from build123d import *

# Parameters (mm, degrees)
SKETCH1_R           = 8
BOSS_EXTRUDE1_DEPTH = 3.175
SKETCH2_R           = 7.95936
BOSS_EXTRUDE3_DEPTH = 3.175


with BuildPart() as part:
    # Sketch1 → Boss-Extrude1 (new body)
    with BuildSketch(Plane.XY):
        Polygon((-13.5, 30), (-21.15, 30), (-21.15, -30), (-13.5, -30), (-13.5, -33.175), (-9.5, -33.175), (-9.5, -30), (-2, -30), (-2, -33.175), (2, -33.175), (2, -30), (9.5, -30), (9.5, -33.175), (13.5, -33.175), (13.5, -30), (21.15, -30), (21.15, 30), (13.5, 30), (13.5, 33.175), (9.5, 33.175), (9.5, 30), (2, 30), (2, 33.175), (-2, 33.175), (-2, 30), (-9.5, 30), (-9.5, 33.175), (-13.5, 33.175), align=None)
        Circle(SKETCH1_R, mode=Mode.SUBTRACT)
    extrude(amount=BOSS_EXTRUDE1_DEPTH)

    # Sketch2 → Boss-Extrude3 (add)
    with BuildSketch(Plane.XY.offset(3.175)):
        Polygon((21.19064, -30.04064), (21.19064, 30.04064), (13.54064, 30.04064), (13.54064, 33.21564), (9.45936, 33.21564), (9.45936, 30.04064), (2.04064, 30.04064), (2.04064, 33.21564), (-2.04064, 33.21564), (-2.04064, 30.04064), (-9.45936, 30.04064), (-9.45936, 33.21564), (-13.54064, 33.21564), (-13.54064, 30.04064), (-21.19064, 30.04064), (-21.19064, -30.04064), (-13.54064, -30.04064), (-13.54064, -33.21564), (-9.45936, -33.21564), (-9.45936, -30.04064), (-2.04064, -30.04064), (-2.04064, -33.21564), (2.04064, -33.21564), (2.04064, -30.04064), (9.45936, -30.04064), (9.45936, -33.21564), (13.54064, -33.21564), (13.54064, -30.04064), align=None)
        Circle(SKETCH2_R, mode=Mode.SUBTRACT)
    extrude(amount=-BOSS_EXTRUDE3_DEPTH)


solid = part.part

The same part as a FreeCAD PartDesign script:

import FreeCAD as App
import Part
import Sketcher
from FreeCAD import Vector


def add_polygon(sketch, points):
    """Adds a closed chain of lines whose ends are joined by coincident constraints."""
    first, n = sketch.GeometryCount, len(points)
    for a, b in zip(points, points[1:] + points[:1]):
        sketch.addGeometry(Part.LineSegment(App.Vector(*a, 0), App.Vector(*b, 0)), False)
    for i in range(n):
        sketch.addConstraint(Sketcher.Constraint("Coincident", first + i, 2, first + (i + 1) % n, 1))

doc = App.newDocument("Part")
body = doc.addObject("PartDesign::Body", "Body")

# Sketch on XY plane
sketch1 = body.newObject("Sketcher::SketchObject", "Sketch")
sketch1.AttachmentSupport = (doc.getObject("XY_Plane"), [""])
sketch1.MapMode = "FlatFace"
add_polygon(sketch1, [(-13.5, 30), (-21.1, 30), (-21.1, -30), (-13.5, -30), (-13.5, -33.2), (-9.5, -33.2), (-9.5, -30), (-2, -30), (-2, -33.2), (2, -33.2), (2, -30), (9.5, -30), (9.5, -33.2), (13.5, -33.2), (13.5, -30), (21.1, -30), (21.1, 30), (13.5, 30), (13.5, 33.2), (9.5, 33.2), (9.5, 30), (2, 30), (2, 33.2), (-2, 33.2), (-2, 30), (-9.5, 30), (-9.5, 33.2), (-13.5, 33.2)])  # lines 0-27
sketch1.addGeometry(Part.Circle(Vector(0, 0, 0), Vector(0, 0, 1), 8), False)  # 28
sketch1.addConstraint([
    Sketcher.Constraint("Horizontal", 0),
    Sketcher.Constraint("Vertical", 1),
    Sketcher.Constraint("Horizontal", 2),
    Sketcher.Constraint("Vertical", 3),
    Sketcher.Constraint("Horizontal", 4),
    Sketcher.Constraint("Vertical", 5),
    Sketcher.Constraint("Horizontal", 6),
    Sketcher.Constraint("Vertical", 7),
    Sketcher.Constraint("Horizontal", 8),
    Sketcher.Constraint("Vertical", 9),
    Sketcher.Constraint("Horizontal", 10),
    Sketcher.Constraint("Vertical", 11),
    Sketcher.Constraint("Horizontal", 12),
    Sketcher.Constraint("Vertical", 13),
    Sketcher.Constraint("Horizontal", 14),
    Sketcher.Constraint("Vertical", 15),
    Sketcher.Constraint("Horizontal", 16),
    Sketcher.Constraint("Vertical", 17),
    Sketcher.Constraint("Horizontal", 18),
    Sketcher.Constraint("Vertical", 19),
    Sketcher.Constraint("Horizontal", 20),
    Sketcher.Constraint("Vertical", 21),
    Sketcher.Constraint("Horizontal", 22),
    Sketcher.Constraint("Vertical", 23),
    Sketcher.Constraint("Horizontal", 24),
    Sketcher.Constraint("Vertical", 25),
    Sketcher.Constraint("Horizontal", 26),
    Sketcher.Constraint("Vertical", 27),
    Sketcher.Constraint("Coincident", 28, 3, -1, 1),
    Sketcher.Constraint("Symmetric", 0, 2, 14, 2, -1, 1),
    Sketcher.Constraint("Symmetric", 2, 2, 16, 2, -1, 1),
    Sketcher.Constraint("Symmetric", 4, 2, 18, 2, -1, 1),
    Sketcher.Constraint("Symmetric", 6, 2, 20, 2, -1, 1),
    Sketcher.Constraint("Symmetric", 8, 2, 22, 2, -1, 1),
    Sketcher.Constraint("Symmetric", 10, 2, 24, 2, -1, 1),
    Sketcher.Constraint("Symmetric", 12, 2, 26, 2, -1, 1),
    Sketcher.Constraint("Symmetric", 6, 2, 9, 2, -2),
    Sketcher.Constraint("Symmetric", 4, 2, 11, 2, -2),
    Sketcher.Constraint("Symmetric", 2, 2, 13, 2, -2),
    Sketcher.Constraint("Horizontal", 2, 2, 5, 2),
    Sketcher.Constraint("Horizontal", 4, 2, 7, 2),
    Sketcher.Constraint("Equal", 4, 8),
    Sketcher.Constraint("Diameter", 28, 16.0),
    Sketcher.Constraint("DistanceX", 4, 1, 4, 2, 4.0),
    Sketcher.Constraint("DistanceY", 1, 2, 1, 1, 60.0),
    Sketcher.Constraint("DistanceX", 6, 1, 6, 2, 7.5),
    Sketcher.Constraint("DistanceX", 0, 2, 0, 1, 7.65),
    Sketcher.Constraint("DistanceY", 3, 2, 3, 1, 3.175),
])
pad1 = body.newObject("PartDesign::Pad", "Pad")
pad1.Profile = sketch1
pad1.Length = 3.175

# Sketch on XY plane
sketch2 = body.newObject("Sketcher::SketchObject", "Sketch001")
sketch2.AttachmentSupport = (doc.getObject("XY_Plane"), [""])
sketch2.MapMode = "FlatFace"
sketch2.AttachmentOffset = App.Placement(Vector(0, 0, 3.175), App.Rotation())
add_polygon(sketch2, [(21.2, -30), (21.2, 30), (13.5, 30), (13.5, 33.2), (9.5, 33.2), (9.5, 30), (2, 30), (2, 33.2), (-2, 33.2), (-2, 30), (-9.5, 30), (-9.5, 33.2), (-13.5, 33.2), (-13.5, 30), (-21.2, 30), (-21.2, -30), (-13.5, -30), (-13.5, -33.2), (-9.5, -33.2), (-9.5, -30), (-2, -30), (-2, -33.2), (2, -33.2), (2, -30), (9.5, -30), (9.5, -33.2), (13.5, -33.2), (13.5, -30)])  # lines 0-27
sketch2.addGeometry(Part.Circle(Vector(0, 0, 0), Vector(0, 0, 1), 8), False)  # 28
sketch2.addConstraint([
    Sketcher.Constraint("Vertical", 0),
    Sketcher.Constraint("Horizontal", 1),
    Sketcher.Constraint("Vertical", 2),
    Sketcher.Constraint("Horizontal", 3),
    Sketcher.Constraint("Vertical", 4),
    Sketcher.Constraint("Horizontal", 5),
    Sketcher.Constraint("Vertical", 6),
    Sketcher.Constraint("Horizontal", 7),
    Sketcher.Constraint("Vertical", 8),
    Sketcher.Constraint("Horizontal", 9),
    Sketcher.Constraint("Vertical", 10),
    Sketcher.Constraint("Horizontal", 11),
    Sketcher.Constraint("Vertical", 12),
    Sketcher.Constraint("Horizontal", 13),
    Sketcher.Constraint("Vertical", 14),
    Sketcher.Constraint("Horizontal", 15),
    Sketcher.Constraint("Vertical", 16),
    Sketcher.Constraint("Horizontal", 17),
    Sketcher.Constraint("Vertical", 18),
    Sketcher.Constraint("Horizontal", 19),
    Sketcher.Constraint("Vertical", 20),
    Sketcher.Constraint("Horizontal", 21),
    Sketcher.Constraint("Vertical", 22),
    Sketcher.Constraint("Horizontal", 23),
    Sketcher.Constraint("Vertical", 24),
    Sketcher.Constraint("Horizontal", 25),
    Sketcher.Constraint("Vertical", 26),
    Sketcher.Constraint("Horizontal", 27),
    Sketcher.Constraint("Coincident", 28, 3, -1, 1),
    Sketcher.Constraint("Symmetric", 0, 2, 14, 2, -1, 1),
    Sketcher.Constraint("Symmetric", 2, 2, 16, 2, -1, 1),
    Sketcher.Constraint("Symmetric", 4, 2, 18, 2, -1, 1),
    Sketcher.Constraint("Symmetric", 6, 2, 20, 2, -1, 1),
    Sketcher.Constraint("Symmetric", 8, 2, 22, 2, -1, 1),
    Sketcher.Constraint("Symmetric", 10, 2, 24, 2, -1, 1),
    Sketcher.Constraint("Symmetric", 12, 2, 26, 2, -1, 1),
    Sketcher.Constraint("Symmetric", 5, 2, 8, 2, -2),
    Sketcher.Constraint("Symmetric", 3, 2, 10, 2, -2),
    Sketcher.Constraint("Symmetric", 1, 2, 12, 2, -2),
    Sketcher.Constraint("Horizontal", 1, 2, 4, 2),
    Sketcher.Constraint("Horizontal", 3, 2, 6, 2),
    Sketcher.Constraint("Equal", 3, 7),
    Sketcher.Constraint("DistanceX", 1, 2, 1, 1, 7.65),
    Sketcher.Constraint("DistanceX", 5, 2, 1, 2, 11.5),
    Sketcher.Constraint("Diameter", 28, 15.91872),
    Sketcher.Constraint("DistanceY", 2, 1, 2, 2, 3.175),
    Sketcher.Constraint("DistanceX", 3, 2, 3, 1, 4.08128),
    Sketcher.Constraint("DistanceY", 0, 1, 0, 2, 60.08128),
])
pad2 = body.newObject("PartDesign::Pad", "Pad001")
pad2.Profile = sketch2
pad2.Length = 3.175
pad2.Reversed = True

doc.recompute()
